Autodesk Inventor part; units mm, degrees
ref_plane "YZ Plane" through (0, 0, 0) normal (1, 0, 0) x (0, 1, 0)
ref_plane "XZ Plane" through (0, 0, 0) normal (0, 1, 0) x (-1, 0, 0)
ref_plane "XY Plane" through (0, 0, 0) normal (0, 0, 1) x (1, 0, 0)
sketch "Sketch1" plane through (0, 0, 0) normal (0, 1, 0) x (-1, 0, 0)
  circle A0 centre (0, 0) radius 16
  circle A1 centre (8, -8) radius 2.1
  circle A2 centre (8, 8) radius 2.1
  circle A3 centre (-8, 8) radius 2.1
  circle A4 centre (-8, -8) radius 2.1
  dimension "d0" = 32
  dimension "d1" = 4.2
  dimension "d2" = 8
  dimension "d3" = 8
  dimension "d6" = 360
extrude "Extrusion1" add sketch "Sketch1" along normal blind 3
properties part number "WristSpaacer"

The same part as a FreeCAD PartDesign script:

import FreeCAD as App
import Part
import Sketcher
from FreeCAD import Vector

doc = App.newDocument("Part")
body = doc.addObject("PartDesign::Body", "Body")

sketch1 = body.newObject("Sketcher::SketchObject", "Sketch")
sketch1.AttachmentSupport = (doc.getObject("XZ_Plane"), [""])
sketch1.MapMode = "FlatFace"
sketch1.addGeometry([
    Part.Circle(Vector(0, 0, 0), Vector(0, 0, 1), 16),
    Part.Circle(Vector(8, -8, 0), Vector(0, 0, 1), 2.1),
    Part.Circle(Vector(-8, -8, 0), Vector(0, 0, 1), 2.1),
    Part.Circle(Vector(8, 8, 0), Vector(0, 0, 1), 2.1),
    Part.Circle(Vector(-8, 8, 0), Vector(0, 0, 1), 2.1),
], False)
sketch1.addConstraint([
    Sketcher.Constraint("Coincident", 0, 3, -1, 1),
    Sketcher.Constraint("Equal", 1, 2),
    Sketcher.Constraint("Equal", 2, 3),
    Sketcher.Constraint("Equal", 3, 4),
    Sketcher.Constraint("Symmetric", 2, 3, 3, 3, -1, 1),
    Sketcher.Constraint("Symmetric", 1, 3, 4, 3, -1, 1),
    Sketcher.Constraint("Symmetric", 1, 3, 2, 3, -2),
    Sketcher.Constraint("Diameter", 0, 32.0),
    Sketcher.Constraint("Diameter", 1, 4.2),
    Sketcher.Constraint("DistanceX", -1, 1, 1, 3, 8.0),
    Sketcher.Constraint("DistanceY", 1, 3, -1, 1, 8.0),
])
pad1 = body.newObject("PartDesign::Pad", "Pad")
pad1.Profile = sketch1
pad1.Length = 3
pad1.Reversed = True

doc.recompute()
